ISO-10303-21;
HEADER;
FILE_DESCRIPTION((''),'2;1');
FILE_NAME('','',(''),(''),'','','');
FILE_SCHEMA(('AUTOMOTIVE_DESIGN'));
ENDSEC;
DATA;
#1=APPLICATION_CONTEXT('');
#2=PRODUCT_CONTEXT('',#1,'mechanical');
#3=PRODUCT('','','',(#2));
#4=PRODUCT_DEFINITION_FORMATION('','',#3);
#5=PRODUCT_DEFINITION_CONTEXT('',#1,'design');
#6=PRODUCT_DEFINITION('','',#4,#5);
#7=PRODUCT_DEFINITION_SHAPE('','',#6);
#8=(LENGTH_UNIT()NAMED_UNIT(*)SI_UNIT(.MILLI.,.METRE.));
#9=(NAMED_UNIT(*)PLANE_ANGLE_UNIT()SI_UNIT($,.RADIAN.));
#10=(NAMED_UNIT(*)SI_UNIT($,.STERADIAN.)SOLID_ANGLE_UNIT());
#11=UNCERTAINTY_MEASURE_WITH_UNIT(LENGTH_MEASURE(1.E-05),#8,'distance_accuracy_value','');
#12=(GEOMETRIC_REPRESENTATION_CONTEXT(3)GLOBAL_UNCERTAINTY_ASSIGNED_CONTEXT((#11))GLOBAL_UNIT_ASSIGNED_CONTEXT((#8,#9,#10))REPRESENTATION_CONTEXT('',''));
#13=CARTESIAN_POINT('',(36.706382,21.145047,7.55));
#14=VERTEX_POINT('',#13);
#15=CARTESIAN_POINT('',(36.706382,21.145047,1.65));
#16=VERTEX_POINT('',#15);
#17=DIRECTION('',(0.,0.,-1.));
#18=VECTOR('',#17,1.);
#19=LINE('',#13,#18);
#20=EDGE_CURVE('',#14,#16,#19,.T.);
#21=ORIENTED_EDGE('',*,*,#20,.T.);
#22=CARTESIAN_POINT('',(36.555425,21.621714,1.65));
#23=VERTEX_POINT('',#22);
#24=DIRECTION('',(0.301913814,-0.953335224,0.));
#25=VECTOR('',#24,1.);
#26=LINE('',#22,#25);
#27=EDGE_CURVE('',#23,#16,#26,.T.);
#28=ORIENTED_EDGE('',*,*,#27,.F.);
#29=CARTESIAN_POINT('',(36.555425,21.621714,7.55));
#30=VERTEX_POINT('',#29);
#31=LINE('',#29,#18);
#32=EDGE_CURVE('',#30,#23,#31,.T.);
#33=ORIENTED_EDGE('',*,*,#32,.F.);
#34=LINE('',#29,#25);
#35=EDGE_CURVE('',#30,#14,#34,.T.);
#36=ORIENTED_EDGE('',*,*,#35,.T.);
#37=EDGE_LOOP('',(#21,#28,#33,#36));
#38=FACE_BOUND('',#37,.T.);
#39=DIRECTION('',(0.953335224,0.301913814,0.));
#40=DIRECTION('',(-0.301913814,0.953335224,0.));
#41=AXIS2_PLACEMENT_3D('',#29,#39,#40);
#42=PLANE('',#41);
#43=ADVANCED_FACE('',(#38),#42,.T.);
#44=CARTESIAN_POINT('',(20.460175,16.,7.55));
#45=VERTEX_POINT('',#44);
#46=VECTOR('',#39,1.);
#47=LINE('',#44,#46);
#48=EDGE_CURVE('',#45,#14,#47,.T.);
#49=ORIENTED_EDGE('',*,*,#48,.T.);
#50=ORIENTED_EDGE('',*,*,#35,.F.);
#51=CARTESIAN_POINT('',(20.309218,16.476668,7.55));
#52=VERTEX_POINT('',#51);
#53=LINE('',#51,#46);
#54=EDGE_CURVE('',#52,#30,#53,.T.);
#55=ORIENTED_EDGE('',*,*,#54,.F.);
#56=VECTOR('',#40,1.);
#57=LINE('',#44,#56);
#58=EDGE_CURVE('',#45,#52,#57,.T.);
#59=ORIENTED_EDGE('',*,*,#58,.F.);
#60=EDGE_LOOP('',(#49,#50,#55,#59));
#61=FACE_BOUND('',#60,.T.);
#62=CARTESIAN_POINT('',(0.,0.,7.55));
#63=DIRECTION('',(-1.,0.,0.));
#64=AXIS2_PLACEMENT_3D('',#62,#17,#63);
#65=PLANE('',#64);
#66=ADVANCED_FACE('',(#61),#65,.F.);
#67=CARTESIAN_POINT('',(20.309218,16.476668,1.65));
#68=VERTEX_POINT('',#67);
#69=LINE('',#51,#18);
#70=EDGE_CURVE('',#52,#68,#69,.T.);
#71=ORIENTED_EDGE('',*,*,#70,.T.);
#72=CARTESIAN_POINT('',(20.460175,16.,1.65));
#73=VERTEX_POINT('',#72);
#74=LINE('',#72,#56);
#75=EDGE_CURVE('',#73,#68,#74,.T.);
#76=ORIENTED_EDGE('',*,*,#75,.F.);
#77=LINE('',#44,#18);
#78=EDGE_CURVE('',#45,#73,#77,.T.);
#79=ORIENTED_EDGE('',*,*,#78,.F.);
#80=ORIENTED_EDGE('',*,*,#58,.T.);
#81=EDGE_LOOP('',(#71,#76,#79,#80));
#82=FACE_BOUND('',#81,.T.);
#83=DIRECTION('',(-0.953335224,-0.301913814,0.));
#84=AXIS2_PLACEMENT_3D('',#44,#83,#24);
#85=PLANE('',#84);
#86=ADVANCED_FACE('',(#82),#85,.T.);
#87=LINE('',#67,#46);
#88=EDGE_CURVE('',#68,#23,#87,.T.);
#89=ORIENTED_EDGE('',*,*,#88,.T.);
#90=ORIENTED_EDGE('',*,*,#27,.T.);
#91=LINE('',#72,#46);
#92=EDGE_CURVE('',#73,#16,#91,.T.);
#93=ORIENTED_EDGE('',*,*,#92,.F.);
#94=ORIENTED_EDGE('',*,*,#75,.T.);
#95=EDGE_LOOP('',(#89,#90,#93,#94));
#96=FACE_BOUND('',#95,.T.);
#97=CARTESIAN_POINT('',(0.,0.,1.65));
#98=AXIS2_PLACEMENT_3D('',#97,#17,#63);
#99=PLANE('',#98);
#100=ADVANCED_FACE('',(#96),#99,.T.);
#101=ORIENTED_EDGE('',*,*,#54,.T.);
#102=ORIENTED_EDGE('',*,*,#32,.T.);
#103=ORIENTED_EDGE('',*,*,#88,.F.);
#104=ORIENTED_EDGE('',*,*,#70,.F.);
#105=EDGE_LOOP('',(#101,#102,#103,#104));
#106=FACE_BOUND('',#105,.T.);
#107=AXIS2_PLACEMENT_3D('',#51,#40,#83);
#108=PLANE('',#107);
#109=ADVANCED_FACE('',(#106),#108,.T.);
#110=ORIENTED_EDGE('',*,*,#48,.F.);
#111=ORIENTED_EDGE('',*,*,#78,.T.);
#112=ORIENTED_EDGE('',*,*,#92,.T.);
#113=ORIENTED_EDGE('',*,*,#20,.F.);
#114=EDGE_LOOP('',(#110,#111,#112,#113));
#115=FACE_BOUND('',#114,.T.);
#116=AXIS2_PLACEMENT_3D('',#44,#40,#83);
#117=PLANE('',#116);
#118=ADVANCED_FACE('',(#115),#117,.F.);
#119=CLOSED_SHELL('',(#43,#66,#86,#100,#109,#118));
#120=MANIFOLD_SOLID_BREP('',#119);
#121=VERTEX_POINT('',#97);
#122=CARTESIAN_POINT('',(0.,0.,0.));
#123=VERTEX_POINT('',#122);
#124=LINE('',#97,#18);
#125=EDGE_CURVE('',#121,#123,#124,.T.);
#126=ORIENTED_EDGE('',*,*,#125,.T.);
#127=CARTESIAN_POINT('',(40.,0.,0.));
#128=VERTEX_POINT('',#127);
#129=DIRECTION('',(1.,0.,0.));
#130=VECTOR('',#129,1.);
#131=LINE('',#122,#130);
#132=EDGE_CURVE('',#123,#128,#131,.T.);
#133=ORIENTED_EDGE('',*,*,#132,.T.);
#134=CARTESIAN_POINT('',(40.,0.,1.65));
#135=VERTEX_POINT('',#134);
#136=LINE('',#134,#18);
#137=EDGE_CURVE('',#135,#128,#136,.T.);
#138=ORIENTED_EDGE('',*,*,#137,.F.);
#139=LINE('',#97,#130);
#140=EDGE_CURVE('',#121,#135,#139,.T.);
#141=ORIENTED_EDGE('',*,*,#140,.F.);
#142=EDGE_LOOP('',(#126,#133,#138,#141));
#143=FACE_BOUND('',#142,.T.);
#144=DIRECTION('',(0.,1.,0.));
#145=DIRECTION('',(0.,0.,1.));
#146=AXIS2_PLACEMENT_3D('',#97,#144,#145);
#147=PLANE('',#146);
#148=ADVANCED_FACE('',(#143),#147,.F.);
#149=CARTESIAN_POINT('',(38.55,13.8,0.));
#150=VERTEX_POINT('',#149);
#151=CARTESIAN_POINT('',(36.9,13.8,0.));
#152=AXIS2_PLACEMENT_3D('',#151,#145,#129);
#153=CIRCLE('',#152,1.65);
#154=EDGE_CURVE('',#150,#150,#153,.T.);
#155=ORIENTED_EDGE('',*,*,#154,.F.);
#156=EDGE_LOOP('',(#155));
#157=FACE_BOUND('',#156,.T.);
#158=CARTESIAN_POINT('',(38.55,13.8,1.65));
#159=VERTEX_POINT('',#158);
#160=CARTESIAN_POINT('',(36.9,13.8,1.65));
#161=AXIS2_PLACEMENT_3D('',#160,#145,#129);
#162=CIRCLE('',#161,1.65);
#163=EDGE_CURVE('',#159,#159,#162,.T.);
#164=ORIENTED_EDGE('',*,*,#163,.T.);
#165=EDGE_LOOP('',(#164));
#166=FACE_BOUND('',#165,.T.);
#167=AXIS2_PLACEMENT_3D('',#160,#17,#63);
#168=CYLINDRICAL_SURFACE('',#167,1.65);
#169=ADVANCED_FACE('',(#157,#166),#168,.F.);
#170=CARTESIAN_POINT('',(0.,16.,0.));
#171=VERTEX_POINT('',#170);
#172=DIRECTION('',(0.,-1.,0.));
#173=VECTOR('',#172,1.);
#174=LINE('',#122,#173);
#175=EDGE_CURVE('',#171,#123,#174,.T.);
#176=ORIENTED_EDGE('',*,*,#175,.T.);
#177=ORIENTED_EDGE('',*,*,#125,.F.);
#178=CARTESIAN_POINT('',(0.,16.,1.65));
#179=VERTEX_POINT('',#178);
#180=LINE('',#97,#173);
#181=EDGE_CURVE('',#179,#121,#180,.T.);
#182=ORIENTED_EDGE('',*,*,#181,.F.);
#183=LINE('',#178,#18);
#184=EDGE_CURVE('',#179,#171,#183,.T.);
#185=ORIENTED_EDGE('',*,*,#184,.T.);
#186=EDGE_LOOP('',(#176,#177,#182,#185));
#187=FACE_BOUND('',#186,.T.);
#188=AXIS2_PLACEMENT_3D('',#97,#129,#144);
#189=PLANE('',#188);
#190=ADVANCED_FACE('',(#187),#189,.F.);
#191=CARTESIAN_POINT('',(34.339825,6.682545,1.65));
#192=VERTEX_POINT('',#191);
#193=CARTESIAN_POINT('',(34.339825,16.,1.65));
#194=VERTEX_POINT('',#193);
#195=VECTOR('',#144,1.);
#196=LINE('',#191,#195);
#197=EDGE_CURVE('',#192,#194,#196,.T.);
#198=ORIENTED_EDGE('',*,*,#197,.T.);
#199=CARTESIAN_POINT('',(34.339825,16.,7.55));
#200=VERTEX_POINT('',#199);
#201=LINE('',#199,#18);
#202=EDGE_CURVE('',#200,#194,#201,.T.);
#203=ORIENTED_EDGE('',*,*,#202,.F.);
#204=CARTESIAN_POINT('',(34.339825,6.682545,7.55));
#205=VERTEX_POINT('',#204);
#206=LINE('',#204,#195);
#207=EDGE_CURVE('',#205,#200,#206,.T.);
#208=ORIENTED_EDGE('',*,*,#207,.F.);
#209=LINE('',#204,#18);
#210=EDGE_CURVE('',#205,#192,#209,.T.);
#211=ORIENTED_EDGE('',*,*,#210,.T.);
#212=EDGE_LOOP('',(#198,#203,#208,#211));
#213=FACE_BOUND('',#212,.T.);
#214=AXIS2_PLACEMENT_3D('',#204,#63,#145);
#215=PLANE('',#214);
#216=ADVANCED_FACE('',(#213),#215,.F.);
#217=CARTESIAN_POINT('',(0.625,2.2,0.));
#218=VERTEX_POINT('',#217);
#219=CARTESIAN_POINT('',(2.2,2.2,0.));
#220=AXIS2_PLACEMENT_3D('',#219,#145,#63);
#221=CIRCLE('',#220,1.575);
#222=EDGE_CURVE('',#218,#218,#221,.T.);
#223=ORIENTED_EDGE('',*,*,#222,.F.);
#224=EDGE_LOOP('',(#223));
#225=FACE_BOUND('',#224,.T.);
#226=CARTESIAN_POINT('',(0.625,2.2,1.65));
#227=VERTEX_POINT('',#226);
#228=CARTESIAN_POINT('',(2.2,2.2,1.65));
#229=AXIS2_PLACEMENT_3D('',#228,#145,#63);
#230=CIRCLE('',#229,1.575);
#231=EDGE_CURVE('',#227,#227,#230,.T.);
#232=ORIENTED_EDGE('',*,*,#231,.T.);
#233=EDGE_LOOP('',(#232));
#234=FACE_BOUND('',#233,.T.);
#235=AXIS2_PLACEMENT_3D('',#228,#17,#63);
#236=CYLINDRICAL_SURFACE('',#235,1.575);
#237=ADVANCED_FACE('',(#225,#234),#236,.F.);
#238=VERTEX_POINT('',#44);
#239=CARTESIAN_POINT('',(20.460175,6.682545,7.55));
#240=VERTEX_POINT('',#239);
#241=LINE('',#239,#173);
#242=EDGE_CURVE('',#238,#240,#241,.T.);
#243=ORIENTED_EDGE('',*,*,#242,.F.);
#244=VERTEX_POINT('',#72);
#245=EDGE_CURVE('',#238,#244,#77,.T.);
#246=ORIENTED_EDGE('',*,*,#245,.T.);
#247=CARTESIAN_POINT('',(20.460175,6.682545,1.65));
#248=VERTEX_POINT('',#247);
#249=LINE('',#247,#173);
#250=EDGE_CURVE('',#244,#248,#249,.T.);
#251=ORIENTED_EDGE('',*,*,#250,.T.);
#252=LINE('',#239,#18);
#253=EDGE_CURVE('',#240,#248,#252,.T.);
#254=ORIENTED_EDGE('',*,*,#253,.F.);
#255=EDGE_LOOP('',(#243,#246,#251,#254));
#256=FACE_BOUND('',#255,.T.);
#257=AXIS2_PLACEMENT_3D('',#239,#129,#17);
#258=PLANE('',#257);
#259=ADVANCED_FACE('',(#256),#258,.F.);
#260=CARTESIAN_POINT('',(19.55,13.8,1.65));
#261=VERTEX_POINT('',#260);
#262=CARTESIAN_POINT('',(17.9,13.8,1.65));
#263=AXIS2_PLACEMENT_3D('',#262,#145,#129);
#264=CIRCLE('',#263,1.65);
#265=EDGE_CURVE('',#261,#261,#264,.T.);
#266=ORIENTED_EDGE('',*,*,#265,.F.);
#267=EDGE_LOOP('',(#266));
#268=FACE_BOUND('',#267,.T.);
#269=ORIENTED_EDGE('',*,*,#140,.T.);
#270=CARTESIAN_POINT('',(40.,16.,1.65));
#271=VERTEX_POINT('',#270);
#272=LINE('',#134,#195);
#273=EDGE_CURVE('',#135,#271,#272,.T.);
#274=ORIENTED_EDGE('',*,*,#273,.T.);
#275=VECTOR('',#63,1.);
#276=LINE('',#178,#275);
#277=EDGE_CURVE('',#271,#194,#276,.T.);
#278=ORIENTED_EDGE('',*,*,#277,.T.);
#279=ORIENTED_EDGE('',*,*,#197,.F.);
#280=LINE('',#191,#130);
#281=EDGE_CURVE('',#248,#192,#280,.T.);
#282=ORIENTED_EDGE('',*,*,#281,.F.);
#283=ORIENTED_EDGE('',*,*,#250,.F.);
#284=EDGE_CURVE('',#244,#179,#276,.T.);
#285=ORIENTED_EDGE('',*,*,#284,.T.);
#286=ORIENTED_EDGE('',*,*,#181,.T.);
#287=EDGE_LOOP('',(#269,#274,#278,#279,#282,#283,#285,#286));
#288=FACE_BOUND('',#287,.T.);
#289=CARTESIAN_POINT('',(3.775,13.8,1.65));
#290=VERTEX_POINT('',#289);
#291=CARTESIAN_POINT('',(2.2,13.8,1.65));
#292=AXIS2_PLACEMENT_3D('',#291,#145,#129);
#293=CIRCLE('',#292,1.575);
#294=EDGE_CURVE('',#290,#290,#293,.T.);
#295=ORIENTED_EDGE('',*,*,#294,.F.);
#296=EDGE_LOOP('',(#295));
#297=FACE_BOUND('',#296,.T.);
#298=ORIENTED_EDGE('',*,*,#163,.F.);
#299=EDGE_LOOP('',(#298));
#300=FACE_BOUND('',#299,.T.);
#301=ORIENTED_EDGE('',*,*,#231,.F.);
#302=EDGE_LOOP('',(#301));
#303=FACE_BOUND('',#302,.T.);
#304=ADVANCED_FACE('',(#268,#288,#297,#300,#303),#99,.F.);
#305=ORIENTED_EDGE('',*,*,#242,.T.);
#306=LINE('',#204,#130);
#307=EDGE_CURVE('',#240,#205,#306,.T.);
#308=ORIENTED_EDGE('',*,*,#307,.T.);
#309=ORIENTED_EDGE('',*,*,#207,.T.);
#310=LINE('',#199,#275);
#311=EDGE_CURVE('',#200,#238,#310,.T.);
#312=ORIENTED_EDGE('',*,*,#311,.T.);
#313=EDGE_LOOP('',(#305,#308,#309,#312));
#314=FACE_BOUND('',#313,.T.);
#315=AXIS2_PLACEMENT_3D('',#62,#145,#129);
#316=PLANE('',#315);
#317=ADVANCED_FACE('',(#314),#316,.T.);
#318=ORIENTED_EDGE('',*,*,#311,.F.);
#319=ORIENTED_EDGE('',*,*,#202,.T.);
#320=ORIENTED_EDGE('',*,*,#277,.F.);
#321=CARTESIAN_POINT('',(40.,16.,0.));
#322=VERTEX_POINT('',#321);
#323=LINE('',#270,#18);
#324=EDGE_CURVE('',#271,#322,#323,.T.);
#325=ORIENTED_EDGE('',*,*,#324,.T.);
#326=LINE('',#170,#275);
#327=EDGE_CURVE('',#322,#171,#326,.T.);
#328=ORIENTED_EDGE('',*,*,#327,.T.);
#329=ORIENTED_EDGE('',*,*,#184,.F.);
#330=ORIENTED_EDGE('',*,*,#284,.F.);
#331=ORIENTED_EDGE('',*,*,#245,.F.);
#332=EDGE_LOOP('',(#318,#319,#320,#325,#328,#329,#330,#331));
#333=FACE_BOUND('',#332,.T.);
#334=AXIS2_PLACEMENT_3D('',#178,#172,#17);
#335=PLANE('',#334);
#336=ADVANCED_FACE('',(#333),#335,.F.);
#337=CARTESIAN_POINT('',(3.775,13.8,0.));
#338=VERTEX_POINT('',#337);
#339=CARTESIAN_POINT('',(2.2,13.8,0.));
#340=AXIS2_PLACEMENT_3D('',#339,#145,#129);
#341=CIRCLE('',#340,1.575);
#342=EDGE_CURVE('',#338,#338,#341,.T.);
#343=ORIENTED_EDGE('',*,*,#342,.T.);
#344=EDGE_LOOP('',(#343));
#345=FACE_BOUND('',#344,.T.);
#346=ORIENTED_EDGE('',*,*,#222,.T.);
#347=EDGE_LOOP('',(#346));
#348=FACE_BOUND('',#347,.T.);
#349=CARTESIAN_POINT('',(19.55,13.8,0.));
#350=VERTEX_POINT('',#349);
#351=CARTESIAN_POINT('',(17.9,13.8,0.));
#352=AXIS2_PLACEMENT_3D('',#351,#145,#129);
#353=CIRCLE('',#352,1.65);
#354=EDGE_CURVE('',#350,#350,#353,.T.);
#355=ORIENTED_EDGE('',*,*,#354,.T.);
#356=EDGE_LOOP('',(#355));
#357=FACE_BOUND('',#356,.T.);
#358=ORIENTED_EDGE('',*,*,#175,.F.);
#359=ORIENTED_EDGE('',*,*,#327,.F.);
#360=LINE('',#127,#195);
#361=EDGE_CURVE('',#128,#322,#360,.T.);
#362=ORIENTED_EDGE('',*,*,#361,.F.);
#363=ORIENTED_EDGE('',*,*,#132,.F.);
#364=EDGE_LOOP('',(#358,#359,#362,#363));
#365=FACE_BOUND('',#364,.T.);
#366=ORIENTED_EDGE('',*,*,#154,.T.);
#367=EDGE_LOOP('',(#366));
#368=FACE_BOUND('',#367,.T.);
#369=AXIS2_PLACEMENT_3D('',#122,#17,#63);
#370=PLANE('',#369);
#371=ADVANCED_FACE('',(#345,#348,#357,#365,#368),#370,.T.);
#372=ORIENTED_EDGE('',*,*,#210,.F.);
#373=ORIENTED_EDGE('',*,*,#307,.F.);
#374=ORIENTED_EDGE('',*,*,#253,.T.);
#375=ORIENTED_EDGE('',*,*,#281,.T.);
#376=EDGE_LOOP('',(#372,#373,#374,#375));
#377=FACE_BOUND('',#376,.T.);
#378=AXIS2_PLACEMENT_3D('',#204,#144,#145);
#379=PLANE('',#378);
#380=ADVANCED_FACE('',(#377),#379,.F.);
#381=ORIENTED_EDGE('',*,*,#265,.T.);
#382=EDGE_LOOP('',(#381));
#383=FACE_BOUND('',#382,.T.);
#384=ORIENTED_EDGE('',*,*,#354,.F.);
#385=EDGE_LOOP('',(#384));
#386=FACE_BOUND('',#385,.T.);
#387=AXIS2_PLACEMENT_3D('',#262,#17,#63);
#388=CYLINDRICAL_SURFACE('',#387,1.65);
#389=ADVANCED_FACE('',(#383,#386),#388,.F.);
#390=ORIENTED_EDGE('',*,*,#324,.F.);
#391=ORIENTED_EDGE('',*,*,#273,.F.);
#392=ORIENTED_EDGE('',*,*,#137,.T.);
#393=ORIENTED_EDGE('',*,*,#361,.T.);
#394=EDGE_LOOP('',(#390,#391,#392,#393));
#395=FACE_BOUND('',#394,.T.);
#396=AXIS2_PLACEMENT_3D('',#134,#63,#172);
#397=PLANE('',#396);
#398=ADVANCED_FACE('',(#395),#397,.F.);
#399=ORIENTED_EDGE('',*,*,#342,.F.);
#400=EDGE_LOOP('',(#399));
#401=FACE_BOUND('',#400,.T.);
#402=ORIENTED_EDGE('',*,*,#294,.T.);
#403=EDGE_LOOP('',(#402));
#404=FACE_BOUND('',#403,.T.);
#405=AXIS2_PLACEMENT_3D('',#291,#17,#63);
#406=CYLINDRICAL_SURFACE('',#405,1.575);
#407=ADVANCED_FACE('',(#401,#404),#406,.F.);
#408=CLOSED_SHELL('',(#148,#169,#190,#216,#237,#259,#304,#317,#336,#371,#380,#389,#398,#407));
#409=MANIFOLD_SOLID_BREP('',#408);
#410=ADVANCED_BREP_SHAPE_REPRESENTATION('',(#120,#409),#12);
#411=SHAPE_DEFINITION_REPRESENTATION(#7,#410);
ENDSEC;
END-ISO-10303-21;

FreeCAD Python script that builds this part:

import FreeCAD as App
import Part
import Sketcher
from FreeCAD import Vector

doc = App.newDocument("Part")
params = doc.addObject("Spreadsheet::Sheet", "Params")
for row, (alias, value) in enumerate([
    ("sketch1_diameter", "3.3 mm"),
    ("sketch1_diameter2", "3.15 mm"),
    ("sketch1_width", "40 mm"),
    ("sketch1_height", "16 mm"),
    ("pad1_length", "1.65 mm"),
    ("pad2_length", "5.9 mm"),
    ("sketch3_length", "0.5 mm"),
    ("pad3_length", "5.9 mm"),
], start=1):
    params.set(f"A{row}", alias)
    params.set(f"B{row}", "=" + value)
    params.setAlias(f"B{row}", alias)

body = doc.addObject("PartDesign::Body", "Body")

# Sketch on XY plane
sketch1 = doc.addObject("Sketcher::SketchObject", "Sketch")
body.addObject(sketch1)
sketch1.AttachmentSupport = (doc.XY_Plane, [""])
sketch1.MapMode = "FlatFace"
sketch1.addGeometry([
    Part.LineSegment(Vector(0, 16, 0), Vector(0, 0, 0)),  # 0
    Part.LineSegment(Vector(0, 0, 0), Vector(40, 0, 0)),  # 1
    Part.LineSegment(Vector(40, 0, 0), Vector(40, 16, 0)),  # 2
    Part.LineSegment(Vector(40, 16, 0), Vector(0, 16, 0)),  # 3
    Part.Circle(Vector(2.2, 2.2, 0), Vector(0, 0, 1), 1.6),  # 4
    Part.Circle(Vector(2.2, 13.8, 0), Vector(0, 0, 1), 1.6),  # 5
    Part.Circle(Vector(17.9, 13.8, 0), Vector(0, 0, 1), 1.6),  # 6
    Part.Circle(Vector(36.9, 13.8, 0), Vector(0, 0, 1), 1.6),  # 7
], False)
sketch1.addConstraint([
    Sketcher.Constraint("Coincident", 0, 2, 1, 1),
    Sketcher.Constraint("Coincident", 1, 2, 2, 1),
    Sketcher.Constraint("Coincident", 2, 2, 3, 1),
    Sketcher.Constraint("Coincident", 3, 2, 0, 1),
    Sketcher.Constraint("Vertical", 0),
    Sketcher.Constraint("Horizontal", 1),
    Sketcher.Constraint("Vertical", 2),
    Sketcher.Constraint("Horizontal", 3),
    Sketcher.Constraint("Coincident", 0, 2, -1, 1),
    Sketcher.Constraint("Equal", 4, 5),
    Sketcher.Constraint("Equal", 6, 7),
    Sketcher.Constraint("Horizontal", 5, 3, 6, 3),
    Sketcher.Constraint("Horizontal", 6, 3, 7, 3),
    Sketcher.Constraint("Vertical", 4, 3, 5, 3),
    Sketcher.Constraint("Diameter", 6, 3.3),
    Sketcher.Constraint("Diameter", 4, 3.15),
    Sketcher.Constraint("DistanceX", 1, 1, 1, 2, 40.0),
    Sketcher.Constraint("DistanceY", 0, 2, 0, 1, 16.0),
    Sketcher.Constraint("DistanceX", 6, 3, 7, 3, 19.0),
    Sketcher.Constraint("DistanceX", -1, 1, 4, 3, 2.2),
    Sketcher.Constraint("DistanceY", -1, 1, 4, 3, 2.2),
    Sketcher.Constraint("DistanceY", -1, 1, 5, 3, 13.8),
    Sketcher.Constraint("DistanceX", -1, 1, 6, 3, 17.9),
])
sketch1.setExpression("Constraints[14]", "Params.sketch1_diameter")
sketch1.setExpression("Constraints[15]", "Params.sketch1_diameter2")
sketch1.setExpression("Constraints[16]", "Params.sketch1_width")
sketch1.setExpression("Constraints[17]", "Params.sketch1_height")
pad1 = doc.addObject("PartDesign::Pad", "Pad")
body.addObject(pad1)
pad1.Profile = sketch1
pad1.setExpression("Length", "Params.pad1_length")

# Sketch on XY plane
sketch2 = doc.addObject("Sketcher::SketchObject", "Sketch001")
body.addObject(sketch2)
sketch2.AttachmentSupport = (doc.XY_Plane, [""])
sketch2.MapMode = "FlatFace"
sketch2.AttachmentOffset = App.Placement(Vector(0, 0, 1.65), App.Rotation())
sketch2.addGeometry([
    Part.LineSegment(Vector(20, 16, 0), Vector(20, 7, 0)),
    Part.LineSegment(Vector(20, 7, 0), Vector(34, 7, 0)),
    Part.LineSegment(Vector(34, 7, 0), Vector(34, 16, 0)),
    Part.LineSegment(Vector(34, 16, 0), Vector(20, 16, 0)),
], False)
sketch2.addConstraint([
    Sketcher.Constraint("Coincident", 0, 2, 1, 1),
    Sketcher.Constraint("Coincident", 1, 2, 2, 1),
    Sketcher.Constraint("Coincident", 2, 2, 3, 1),
    Sketcher.Constraint("Coincident", 3, 2, 0, 1),
    Sketcher.Constraint("Vertical", 0),
    Sketcher.Constraint("Horizontal", 1),
    Sketcher.Constraint("Vertical", 2),
    Sketcher.Constraint("Horizontal", 3),
    Sketcher.Constraint("DistanceY", -1, 1, 2, 2, 16.0),
    Sketcher.Constraint("DistanceX", 1, 1, 1, 2, 13.87965),
    Sketcher.Constraint("DistanceY", 0, 2, 0, 1, 9.317455),
    Sketcher.Constraint("DistanceX", -1, 1, 0, 2, 20.460175),
])
pad2 = doc.addObject("PartDesign::Pad", "Pad001")
body.addObject(pad2)
pad2.Profile = sketch2
pad2.setExpression("Length", "Params.pad2_length")
body2 = doc.addObject("PartDesign::Body", "Body001")

# Sketch on XY plane
sketch3 = doc.addObject("Sketcher::SketchObject", "Sketch002")
body2.addObject(sketch3)
sketch3.AttachmentSupport = (doc.getObject("XY_Plane001"), [""])
sketch3.MapMode = "FlatFace"
sketch3.AttachmentOffset = App.Placement(Vector(0, 0, 1.65), App.Rotation())
sketch3.addGeometry([
    Part.LineSegment(Vector(20.5, 16, 0), Vector(36.7, 21.1, 0)),
    Part.LineSegment(Vector(36.7, 21.1, 0), Vector(36.6, 21.6, 0)),
    Part.LineSegment(Vector(36.6, 21.6, 0), Vector(20.3, 16.5, 0)),
    Part.LineSegment(Vector(20.3, 16.5, 0), Vector(20.5, 16, 0)),
], False)
sketch3.addConstraint([
    Sketcher.Constraint("Coincident", 0, 2, 1, 1),
    Sketcher.Constraint("Coincident", 1, 2, 2, 1),
    Sketcher.Constraint("Coincident", 2, 2, 3, 1),
    Sketcher.Constraint("Coincident", 3, 2, 0, 1),
    Sketcher.Constraint("Perpendicular", 0, 1),
    Sketcher.Constraint("Perpendicular", 1, 2),
    Sketcher.Constraint("Perpendicular", 2, 3),
    Sketcher.Constraint("DistanceY", -1, 1, 3, 2, 16.0),
    Sketcher.Constraint("Distance", 1, 0.5),
    Sketcher.Constraint("DistanceX", -1, 1, 2, 2, 20.309218),
    Sketcher.Constraint("DistanceY", 2, 2, 0, 2, 4.668379),
    Sketcher.Constraint("DistanceX", 3, 2, 1, 2, 16.09525),
])
sketch3.setExpression("Constraints[8]", "Params.sketch3_length")
pad3 = doc.addObject("PartDesign::Pad", "Pad002")
body2.addObject(pad3)
pad3.Profile = sketch3
pad3.setExpression("Length", "Params.pad3_length")

doc.recompute()
